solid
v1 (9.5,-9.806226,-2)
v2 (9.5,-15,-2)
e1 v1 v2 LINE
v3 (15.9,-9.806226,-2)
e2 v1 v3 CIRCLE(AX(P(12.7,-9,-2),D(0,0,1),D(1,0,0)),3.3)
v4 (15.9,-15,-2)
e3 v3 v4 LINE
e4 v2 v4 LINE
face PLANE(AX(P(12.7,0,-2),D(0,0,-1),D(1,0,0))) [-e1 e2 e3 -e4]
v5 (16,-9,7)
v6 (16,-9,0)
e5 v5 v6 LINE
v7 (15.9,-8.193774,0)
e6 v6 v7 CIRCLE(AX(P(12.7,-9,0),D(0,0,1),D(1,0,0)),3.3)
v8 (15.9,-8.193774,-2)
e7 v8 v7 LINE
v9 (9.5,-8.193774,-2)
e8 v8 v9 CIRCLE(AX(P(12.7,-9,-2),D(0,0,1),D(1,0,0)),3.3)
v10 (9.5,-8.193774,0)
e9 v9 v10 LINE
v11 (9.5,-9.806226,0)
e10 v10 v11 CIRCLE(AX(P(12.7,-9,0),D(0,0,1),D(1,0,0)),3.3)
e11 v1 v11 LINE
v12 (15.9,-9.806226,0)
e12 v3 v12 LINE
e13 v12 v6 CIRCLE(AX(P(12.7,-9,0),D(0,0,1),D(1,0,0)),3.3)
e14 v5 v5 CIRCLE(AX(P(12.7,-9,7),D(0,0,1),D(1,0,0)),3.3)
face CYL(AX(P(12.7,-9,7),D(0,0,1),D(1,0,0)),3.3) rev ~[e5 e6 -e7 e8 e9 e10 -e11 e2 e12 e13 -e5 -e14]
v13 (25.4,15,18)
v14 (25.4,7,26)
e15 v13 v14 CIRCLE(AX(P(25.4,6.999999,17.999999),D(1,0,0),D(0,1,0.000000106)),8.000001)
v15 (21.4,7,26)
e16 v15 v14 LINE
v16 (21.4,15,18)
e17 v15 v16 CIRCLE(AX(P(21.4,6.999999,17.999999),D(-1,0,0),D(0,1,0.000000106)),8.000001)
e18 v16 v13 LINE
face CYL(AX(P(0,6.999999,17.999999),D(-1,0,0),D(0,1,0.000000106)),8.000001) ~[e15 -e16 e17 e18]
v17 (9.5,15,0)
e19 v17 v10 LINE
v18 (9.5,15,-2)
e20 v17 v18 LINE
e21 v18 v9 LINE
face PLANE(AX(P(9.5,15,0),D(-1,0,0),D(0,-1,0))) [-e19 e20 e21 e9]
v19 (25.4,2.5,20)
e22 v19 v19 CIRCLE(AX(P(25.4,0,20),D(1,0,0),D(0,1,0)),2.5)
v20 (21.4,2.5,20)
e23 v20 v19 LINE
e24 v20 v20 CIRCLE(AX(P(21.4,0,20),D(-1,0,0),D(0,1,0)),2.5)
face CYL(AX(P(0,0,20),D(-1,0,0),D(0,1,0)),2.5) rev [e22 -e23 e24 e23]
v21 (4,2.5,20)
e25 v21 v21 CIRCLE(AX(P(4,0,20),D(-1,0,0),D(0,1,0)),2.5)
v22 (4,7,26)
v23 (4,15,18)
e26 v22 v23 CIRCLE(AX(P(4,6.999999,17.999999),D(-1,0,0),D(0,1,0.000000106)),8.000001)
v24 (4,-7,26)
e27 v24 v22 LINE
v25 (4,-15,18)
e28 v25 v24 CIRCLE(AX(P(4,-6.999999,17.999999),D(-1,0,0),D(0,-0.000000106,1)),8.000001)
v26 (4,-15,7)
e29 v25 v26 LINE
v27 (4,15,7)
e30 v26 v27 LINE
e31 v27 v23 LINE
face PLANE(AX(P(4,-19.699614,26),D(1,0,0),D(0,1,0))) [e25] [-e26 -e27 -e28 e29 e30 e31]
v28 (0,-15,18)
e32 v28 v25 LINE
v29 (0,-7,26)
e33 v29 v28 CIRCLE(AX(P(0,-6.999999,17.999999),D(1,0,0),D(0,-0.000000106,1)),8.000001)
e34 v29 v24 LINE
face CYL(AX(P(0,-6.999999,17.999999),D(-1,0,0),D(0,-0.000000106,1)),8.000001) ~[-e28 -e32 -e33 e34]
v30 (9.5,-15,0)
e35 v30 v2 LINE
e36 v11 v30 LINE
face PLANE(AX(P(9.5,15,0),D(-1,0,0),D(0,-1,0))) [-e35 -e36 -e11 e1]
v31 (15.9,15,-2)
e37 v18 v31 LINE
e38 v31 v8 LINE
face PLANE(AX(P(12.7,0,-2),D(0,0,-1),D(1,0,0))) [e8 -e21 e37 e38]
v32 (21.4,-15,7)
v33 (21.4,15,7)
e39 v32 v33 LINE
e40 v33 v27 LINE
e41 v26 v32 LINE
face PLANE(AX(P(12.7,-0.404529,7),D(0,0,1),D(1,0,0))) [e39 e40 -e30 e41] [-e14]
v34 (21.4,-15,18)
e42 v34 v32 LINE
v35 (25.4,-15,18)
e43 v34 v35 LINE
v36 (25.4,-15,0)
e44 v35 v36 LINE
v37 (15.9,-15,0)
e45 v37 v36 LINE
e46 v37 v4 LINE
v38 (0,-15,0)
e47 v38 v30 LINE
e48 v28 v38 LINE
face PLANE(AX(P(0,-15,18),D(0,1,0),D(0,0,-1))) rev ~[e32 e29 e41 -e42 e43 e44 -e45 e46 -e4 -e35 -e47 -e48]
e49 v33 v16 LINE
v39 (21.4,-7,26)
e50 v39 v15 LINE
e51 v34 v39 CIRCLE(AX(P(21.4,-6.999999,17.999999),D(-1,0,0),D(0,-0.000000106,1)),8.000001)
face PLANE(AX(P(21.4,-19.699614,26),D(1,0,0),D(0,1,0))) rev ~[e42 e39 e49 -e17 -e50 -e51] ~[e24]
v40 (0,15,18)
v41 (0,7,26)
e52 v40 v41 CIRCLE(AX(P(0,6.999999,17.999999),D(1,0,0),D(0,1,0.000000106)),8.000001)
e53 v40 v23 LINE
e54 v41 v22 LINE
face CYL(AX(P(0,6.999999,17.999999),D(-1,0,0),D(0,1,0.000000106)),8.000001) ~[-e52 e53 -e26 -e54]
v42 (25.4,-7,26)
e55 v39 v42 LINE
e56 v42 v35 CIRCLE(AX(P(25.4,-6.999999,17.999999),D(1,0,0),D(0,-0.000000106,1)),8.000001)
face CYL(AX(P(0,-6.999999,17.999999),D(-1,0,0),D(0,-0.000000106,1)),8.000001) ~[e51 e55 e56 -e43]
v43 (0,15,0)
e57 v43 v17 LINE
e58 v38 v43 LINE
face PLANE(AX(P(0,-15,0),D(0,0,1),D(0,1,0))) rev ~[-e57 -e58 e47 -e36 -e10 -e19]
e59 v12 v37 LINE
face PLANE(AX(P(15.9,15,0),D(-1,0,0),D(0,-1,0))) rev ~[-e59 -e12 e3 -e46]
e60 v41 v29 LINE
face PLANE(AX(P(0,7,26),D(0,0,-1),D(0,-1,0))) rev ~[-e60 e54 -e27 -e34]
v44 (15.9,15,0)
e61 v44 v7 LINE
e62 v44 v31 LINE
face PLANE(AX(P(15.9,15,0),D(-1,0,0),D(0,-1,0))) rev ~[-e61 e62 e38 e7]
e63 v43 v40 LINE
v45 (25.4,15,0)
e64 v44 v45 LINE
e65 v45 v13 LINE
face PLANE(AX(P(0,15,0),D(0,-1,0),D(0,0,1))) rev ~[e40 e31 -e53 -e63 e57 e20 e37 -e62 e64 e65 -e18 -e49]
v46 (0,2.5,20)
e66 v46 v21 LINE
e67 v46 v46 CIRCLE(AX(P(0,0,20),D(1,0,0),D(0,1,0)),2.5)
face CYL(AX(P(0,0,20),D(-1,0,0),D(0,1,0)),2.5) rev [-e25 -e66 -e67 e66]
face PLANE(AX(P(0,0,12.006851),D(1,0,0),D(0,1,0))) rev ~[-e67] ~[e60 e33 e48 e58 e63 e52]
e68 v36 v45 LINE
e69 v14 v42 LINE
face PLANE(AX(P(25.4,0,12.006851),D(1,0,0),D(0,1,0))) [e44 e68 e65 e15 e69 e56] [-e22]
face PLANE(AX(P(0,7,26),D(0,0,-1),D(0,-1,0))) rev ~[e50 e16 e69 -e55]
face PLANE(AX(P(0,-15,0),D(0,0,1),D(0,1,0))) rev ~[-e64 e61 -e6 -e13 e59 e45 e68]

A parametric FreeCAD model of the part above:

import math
import FreeCAD as App
import Part
import Sketcher
from FreeCAD import Vector
Q = App.Units.Quantity


def add_polygon(sketch, points):
    """Adds a closed chain of lines whose ends are joined by coincident constraints."""
    first, n = sketch.GeometryCount, len(points)
    for a, b in zip(points, points[1:] + points[:1]):
        sketch.addGeometry(Part.LineSegment(App.Vector(*a, 0), App.Vector(*b, 0)), False)
    for i in range(n):
        sketch.addConstraint(Sketcher.Constraint("Coincident", first + i, 2, first + (i + 1) % n, 1))

doc = App.newDocument("Part")
params = doc.addObject("Spreadsheet::Sheet", "Params")
for row, (alias, value) in enumerate([
    ("sketch1_diameter", "5 mm"),
    ("sketch1_radius", "8.000001 mm"),
    ("sketch1_width", "14 mm"),
    ("sketch1_height", "18 mm"),
    ("pad1_length", "25.4 mm"),
    ("sketch2_width", "17.4 mm"),
    ("pocket1_length", "19 mm"),
    ("sketch3_height", "30 mm"),
    ("sketch3_width", "6.4 mm"),
    ("pad2_length", "2 mm"),
    ("sketch4_diameter", "6.6 mm"),
    ("pocket2_length", "10 mm"),
], start=1):
    params.set(f"A{row}", alias)
    params.set(f"B{row}", "=" + value)
    params.setAlias(f"B{row}", alias)

body = doc.addObject("PartDesign::Body", "Body")

sketch1 = body.newObject("Sketcher::SketchObject", "Sketch")
sketch1.AttachmentSupport = (doc.getObject("YZ_Plane"), [""])
sketch1.MapMode = "FlatFace"
sketch1.addGeometry([
    Part.LineSegment(Vector(7, 26, 0), Vector(-7, 26, 0)),
    Part.ArcOfCircle(Part.Circle(Vector(-7, 18, 0), Vector(0, 0, 1), 8), math.radians(90), math.radians(180)),
    Part.LineSegment(Vector(-15, 18, 0), Vector(-15, 0, 0)),
    Part.LineSegment(Vector(-15, 0, 0), Vector(15, 0, 0)),
    Part.LineSegment(Vector(15, 0, 0), Vector(15, 18, 0)),
    Part.ArcOfCircle(Part.Circle(Vector(7, 18, 0), Vector(0, 0, 1), 8), math.radians(0), math.radians(90)),
    Part.Circle(Vector(0, 20, 0), Vector(0, 0, 1), 2.5),
], False)
sketch1.addConstraint([
    Sketcher.Constraint("Tangent", 0, 2, 1, 1),
    Sketcher.Constraint("Tangent", 1, 2, 2, 1),
    Sketcher.Constraint("Coincident", 2, 2, 3, 1),
    Sketcher.Constraint("Coincident", 3, 2, 4, 1),
    Sketcher.Constraint("Tangent", 4, 2, 5, 1),
    Sketcher.Constraint("Tangent", 5, 2, 0, 1),
    Sketcher.Constraint("Horizontal", 0),
    Sketcher.Constraint("Vertical", 2),
    Sketcher.Constraint("Horizontal", 3),
    Sketcher.Constraint("Vertical", 4),
    Sketcher.Constraint("Equal", 1, 5),
    Sketcher.Constraint("Symmetric", 2, 2, 3, 2, -1, 1),
    Sketcher.Constraint("PointOnObject", 6, 3, -2),
    Sketcher.Constraint("Diameter", 6, Q("5 mm")),
    Sketcher.Constraint("Radius", 1, Q("8.000001 mm")),
    Sketcher.Constraint("DistanceX", 0, 2, 0, 1, Q("14 mm")),
    Sketcher.Constraint("DistanceY", 2, 2, 2, 1, Q("18 mm")),
    Sketcher.Constraint("DistanceY", -1, 1, 6, 3, Q("20 mm")),
])
sketch1.setExpression("Constraints[13]", "Params.sketch1_diameter")
sketch1.setExpression("Constraints[14]", "Params.sketch1_radius")
sketch1.setExpression("Constraints[15]", "Params.sketch1_width")
sketch1.setExpression("Constraints[16]", "Params.sketch1_height")
pad1 = body.newObject("PartDesign::Pad", "Pad")
pad1.Profile = sketch1
pad1.setExpression("Length", "Params.pad1_length")

sketch2 = body.newObject("Sketcher::SketchObject", "Sketch001")
sketch2.AttachmentSupport = (doc.getObject("XY_Plane"), [""])
sketch2.MapMode = "FlatFace"
sketch2.AttachmentOffset = App.Placement(Vector(0, 0, 26), App.Rotation())
add_polygon(sketch2, [(4, 19), (4, -20), (21, -20), (21, 19)])
sketch2.addConstraint([
    Sketcher.Constraint("Vertical", 0),
    Sketcher.Constraint("Horizontal", 1),
    Sketcher.Constraint("Vertical", 2),
    Sketcher.Constraint("Horizontal", 3),
    Sketcher.Constraint("DistanceX", 1, 1, 1, 2, Q("17.4 mm")),
    Sketcher.Constraint("DistanceX", -1, 1, 0, 2, Q("4 mm")),
    Sketcher.Constraint("DistanceY", 0, 2, 0, 1, Q("38.590171 mm")),
    Sketcher.Constraint("DistanceY", 0, 2, -1, 1, Q("19.699614 mm")),
])
sketch2.setExpression("Constraints[8]", "Params.sketch2_width")
pocket1 = body.newObject("PartDesign::Pocket", "Pocket")
pocket1.Profile = sketch2
pocket1.setExpression("Length", "Params.pocket1_length")

sketch3 = body.newObject("Sketcher::SketchObject", "Sketch002")
sketch3.AttachmentSupport = (doc.getObject("XY_Plane"), [""])
sketch3.MapMode = "FlatFace"
add_polygon(sketch3, [(10, -15), (10, 15), (16, 15), (16, -15)])
sketch3.addConstraint([
    Sketcher.Constraint("Vertical", 0),
    Sketcher.Constraint("Horizontal", 1),
    Sketcher.Constraint("Vertical", 2),
    Sketcher.Constraint("Horizontal", 3),
    Sketcher.Constraint("DistanceY", 0, 1, 0, 2, Q("30 mm")),
    Sketcher.Constraint("DistanceX", 1, 1, 1, 2, Q("6.4 mm")),
    Sketcher.Constraint("DistanceY", -1, 1, 0, 2, Q("15 mm")),
    Sketcher.Constraint("DistanceX", -1, 1, 0, 2, Q("9.5 mm")),
])
sketch3.setExpression("Constraints[8]", "Params.sketch3_height")
sketch3.setExpression("Constraints[9]", "Params.sketch3_width")
pad2 = body.newObject("PartDesign::Pad", "Pad001")
pad2.Profile = sketch3
pad2.setExpression("Length", "Params.pad2_length")
pad2.Reversed = True

sketch4 = body.newObject("Sketcher::SketchObject", "Sketch003")
sketch4.AttachmentSupport = (doc.getObject("XY_Plane"), [""])
sketch4.MapMode = "FlatFace"
sketch4.AttachmentOffset = App.Placement(Vector(0, 0, 7), App.Rotation())
sketch4.addGeometry(Part.Circle(Vector(12.7, -9, 0), Vector(0, 0, 1), 3.3), False)
sketch4.addConstraint([
    Sketcher.Constraint("Diameter", 0, Q("6.6 mm")),
    Sketcher.Constraint("DistanceY", 0, 3, -1, 1, Q("9 mm")),
    Sketcher.Constraint("DistanceX", -1, 1, 0, 3, Q("12.7 mm")),
])
sketch4.setExpression("Constraints[0]", "Params.sketch4_diameter")
pocket2 = body.newObject("PartDesign::Pocket", "Pocket001")
pocket2.Profile = sketch4
pocket2.setExpression("Length", "Params.pocket2_length")

doc.recompute()
